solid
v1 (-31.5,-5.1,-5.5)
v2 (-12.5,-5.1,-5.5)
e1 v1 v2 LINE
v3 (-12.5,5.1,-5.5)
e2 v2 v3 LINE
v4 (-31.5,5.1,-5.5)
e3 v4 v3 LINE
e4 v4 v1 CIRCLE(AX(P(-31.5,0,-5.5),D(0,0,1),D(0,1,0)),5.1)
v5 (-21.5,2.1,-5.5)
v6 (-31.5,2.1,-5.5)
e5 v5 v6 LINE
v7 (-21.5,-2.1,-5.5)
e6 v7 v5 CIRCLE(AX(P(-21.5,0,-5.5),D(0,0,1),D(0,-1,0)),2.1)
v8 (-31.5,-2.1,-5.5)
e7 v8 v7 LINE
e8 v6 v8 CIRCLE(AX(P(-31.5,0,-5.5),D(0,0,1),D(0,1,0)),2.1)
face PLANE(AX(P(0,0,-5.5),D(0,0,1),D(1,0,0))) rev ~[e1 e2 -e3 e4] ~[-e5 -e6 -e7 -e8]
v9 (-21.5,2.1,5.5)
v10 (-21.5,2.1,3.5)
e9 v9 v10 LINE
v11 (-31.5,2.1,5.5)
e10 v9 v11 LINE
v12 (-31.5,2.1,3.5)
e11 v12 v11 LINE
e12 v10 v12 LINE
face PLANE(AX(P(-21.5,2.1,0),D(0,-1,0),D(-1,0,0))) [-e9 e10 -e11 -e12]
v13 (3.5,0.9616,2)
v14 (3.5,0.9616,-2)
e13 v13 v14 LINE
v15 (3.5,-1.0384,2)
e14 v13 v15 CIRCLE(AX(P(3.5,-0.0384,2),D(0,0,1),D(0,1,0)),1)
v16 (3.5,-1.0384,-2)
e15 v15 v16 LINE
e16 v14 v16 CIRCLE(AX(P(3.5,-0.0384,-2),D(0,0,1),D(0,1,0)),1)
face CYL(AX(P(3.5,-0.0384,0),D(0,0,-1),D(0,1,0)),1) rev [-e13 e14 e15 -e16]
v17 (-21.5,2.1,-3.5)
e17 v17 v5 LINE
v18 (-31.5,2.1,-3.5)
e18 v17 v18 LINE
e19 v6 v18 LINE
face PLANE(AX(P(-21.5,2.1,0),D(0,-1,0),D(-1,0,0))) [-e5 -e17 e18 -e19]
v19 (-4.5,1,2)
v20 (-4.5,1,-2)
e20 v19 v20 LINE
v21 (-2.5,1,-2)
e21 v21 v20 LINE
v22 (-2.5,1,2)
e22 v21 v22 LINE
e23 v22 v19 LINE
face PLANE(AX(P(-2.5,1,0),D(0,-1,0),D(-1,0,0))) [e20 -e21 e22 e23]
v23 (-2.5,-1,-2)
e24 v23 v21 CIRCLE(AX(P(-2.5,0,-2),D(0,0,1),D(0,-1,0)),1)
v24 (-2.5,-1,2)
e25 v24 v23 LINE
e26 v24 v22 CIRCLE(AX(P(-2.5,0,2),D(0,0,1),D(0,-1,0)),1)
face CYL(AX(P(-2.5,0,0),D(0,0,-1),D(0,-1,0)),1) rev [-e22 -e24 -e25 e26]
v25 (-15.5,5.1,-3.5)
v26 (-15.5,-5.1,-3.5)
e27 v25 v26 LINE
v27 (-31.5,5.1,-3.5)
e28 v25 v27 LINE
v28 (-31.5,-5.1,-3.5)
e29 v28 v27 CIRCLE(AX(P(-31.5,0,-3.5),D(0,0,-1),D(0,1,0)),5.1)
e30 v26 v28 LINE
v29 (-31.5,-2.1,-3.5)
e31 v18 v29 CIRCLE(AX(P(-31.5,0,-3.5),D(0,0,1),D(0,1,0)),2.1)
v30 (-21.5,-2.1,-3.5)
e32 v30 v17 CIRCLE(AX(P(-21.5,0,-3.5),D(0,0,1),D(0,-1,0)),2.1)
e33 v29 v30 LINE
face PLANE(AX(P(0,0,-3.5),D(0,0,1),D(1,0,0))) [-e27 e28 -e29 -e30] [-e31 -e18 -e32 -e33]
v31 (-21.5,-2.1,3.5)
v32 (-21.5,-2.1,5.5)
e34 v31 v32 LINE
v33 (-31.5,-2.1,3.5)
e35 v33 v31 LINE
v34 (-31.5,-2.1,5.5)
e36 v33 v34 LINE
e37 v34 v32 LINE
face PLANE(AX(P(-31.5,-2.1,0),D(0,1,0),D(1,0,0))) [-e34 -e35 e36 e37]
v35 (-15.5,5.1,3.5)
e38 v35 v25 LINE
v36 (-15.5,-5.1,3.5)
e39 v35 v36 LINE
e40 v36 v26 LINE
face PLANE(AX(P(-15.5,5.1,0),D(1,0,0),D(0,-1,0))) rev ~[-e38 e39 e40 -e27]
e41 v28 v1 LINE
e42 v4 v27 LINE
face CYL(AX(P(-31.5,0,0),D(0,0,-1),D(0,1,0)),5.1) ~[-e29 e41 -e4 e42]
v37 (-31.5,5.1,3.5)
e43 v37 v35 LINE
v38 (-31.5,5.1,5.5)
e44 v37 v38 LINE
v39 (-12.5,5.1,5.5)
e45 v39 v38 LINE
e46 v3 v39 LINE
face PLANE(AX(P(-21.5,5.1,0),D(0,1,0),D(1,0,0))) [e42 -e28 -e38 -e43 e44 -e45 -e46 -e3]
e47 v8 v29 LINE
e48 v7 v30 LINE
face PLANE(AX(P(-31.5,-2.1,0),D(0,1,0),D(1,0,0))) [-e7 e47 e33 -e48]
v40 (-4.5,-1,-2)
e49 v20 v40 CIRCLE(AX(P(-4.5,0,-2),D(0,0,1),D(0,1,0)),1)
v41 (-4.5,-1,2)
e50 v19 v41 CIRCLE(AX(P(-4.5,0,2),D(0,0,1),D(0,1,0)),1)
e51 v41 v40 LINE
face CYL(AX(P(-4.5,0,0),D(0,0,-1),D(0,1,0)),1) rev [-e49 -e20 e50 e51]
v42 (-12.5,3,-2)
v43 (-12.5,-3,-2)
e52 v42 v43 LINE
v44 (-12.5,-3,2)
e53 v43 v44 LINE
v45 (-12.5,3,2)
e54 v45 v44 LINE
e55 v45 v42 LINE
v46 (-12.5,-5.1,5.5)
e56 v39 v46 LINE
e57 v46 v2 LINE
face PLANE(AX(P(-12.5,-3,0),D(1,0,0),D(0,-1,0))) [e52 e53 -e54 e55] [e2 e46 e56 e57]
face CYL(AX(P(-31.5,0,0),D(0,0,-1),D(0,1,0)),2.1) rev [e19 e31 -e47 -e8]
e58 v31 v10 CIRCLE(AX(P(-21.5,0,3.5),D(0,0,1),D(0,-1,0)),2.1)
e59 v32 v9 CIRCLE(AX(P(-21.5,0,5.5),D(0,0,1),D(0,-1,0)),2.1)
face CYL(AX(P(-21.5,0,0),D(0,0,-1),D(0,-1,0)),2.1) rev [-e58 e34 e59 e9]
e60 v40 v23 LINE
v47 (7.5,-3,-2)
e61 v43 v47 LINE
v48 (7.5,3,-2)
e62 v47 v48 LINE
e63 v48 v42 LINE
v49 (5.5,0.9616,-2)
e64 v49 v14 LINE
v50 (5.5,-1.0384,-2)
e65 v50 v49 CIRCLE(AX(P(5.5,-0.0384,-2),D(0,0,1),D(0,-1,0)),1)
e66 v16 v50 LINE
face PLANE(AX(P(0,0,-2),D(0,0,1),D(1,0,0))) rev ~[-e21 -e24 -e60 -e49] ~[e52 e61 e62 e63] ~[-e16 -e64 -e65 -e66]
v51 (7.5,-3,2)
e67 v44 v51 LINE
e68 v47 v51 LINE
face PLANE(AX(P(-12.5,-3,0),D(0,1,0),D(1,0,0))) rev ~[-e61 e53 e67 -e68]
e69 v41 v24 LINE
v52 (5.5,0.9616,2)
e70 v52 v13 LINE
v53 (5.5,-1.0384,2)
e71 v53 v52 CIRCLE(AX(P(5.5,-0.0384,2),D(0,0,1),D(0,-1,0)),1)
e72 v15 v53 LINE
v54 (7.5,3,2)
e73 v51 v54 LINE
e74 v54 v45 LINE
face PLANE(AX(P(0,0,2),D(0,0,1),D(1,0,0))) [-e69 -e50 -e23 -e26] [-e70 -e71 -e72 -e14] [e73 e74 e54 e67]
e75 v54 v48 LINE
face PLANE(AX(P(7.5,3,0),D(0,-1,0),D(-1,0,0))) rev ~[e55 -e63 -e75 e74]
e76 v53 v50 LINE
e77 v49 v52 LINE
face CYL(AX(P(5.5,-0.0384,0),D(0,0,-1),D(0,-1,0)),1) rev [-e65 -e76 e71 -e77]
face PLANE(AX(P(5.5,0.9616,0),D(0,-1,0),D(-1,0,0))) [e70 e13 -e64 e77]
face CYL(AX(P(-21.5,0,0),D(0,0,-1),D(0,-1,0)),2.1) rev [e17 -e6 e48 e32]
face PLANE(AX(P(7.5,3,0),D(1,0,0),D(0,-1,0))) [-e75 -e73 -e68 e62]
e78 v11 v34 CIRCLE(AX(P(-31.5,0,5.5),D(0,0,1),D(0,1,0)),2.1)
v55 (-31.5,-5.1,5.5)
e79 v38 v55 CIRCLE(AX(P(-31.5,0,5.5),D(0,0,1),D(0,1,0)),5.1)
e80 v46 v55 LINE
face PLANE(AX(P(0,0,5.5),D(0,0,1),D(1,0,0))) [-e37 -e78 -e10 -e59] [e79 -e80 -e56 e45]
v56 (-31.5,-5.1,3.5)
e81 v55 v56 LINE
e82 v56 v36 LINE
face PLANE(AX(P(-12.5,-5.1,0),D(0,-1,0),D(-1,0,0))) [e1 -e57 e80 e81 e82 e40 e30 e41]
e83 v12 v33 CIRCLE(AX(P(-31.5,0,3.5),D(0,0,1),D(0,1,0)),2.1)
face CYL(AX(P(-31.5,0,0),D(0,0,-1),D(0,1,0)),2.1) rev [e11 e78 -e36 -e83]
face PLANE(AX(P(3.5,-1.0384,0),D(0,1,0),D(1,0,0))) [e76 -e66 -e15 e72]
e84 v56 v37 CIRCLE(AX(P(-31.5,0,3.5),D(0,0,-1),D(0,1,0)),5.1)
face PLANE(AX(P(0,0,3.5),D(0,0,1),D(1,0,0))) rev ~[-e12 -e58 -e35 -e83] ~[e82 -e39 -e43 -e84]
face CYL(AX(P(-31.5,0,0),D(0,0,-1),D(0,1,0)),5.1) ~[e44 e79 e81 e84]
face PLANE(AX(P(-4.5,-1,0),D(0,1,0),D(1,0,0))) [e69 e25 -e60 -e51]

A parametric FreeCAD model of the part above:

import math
import FreeCAD as App
import Part
import Sketcher
Q = App.Units.Quantity

doc = App.newDocument("Part")
params = doc.addObject("Spreadsheet::Sheet", "Params")
for row, (alias, value) in enumerate([
    ("sketch1_radius", "1 mm"),
    ("sketch1_width", "2 mm"),
    ("sketch1_height", "6 mm"),
    ("sketch1_width2", "20 mm"),
    ("pad1_length", "4 mm"),
    ("sketch2_radius", "2.1 mm"),
    ("sketch2_width", "10 mm"),
    ("pad2_length", "11 mm"),
    ("sketch3_radius", "2.1 mm"),
    ("sketch3_width", "10 mm"),
    ("pocket1_length", "7 mm"),
], start=1):
    params.set(f"A{row}", alias)
    params.set(f"B{row}", "=" + value)
    params.setAlias(f"B{row}", alias)

body = doc.addObject("PartDesign::Body", "Body")

sketch1 = body.newObject("Sketcher::SketchObject", "Sketch")
sketch1.AttachmentSupport = (doc.getObject("XY_Plane"), [""])
sketch1.MapMode = "FlatFace"
sketch1.addGeometry(Part.LineSegment(App.Vector(-12.5, 3, 0), App.Vector(-12.5, -3, 0)), False)
sketch1.addGeometry(Part.LineSegment(App.Vector(-12.5, -3, 0), App.Vector(7.5, -3, 0)), False)
sketch1.addGeometry(Part.LineSegment(App.Vector(7.5, -3, 0), App.Vector(7.5, 3, 0)), False)
sketch1.addGeometry(Part.LineSegment(App.Vector(7.5, 3, 0), App.Vector(-12.5, 3, 0)), False)
sketch1.addGeometry(Part.LineSegment(App.Vector(3.5, 0.9616, 0), App.Vector(5.5, 0.9616, 0)), False)
sketch1.addGeometry(Part.ArcOfCircle(Part.Circle(App.Vector(5.5, -0.0384, 0), App.Vector(0, 0, 1), 1), math.radians(-90), math.radians(90)), False)
sketch1.addGeometry(Part.LineSegment(App.Vector(5.5, -1.0384, 0), App.Vector(3.5, -1.0384, 0)), False)
sketch1.addGeometry(Part.ArcOfCircle(Part.Circle(App.Vector(3.5, -0.0384, 0), App.Vector(0, 0, 1), 1), math.radians(90), math.radians(270)), False)
sketch1.addGeometry(Part.LineSegment(App.Vector(-4.5, 1, 0), App.Vector(-2.5, 1, 0)), False)
sketch1.addGeometry(Part.ArcOfCircle(Part.Circle(App.Vector(-2.5, 0, 0), App.Vector(0, 0, 1), 1), math.radians(-90), math.radians(90)), False)
sketch1.addGeometry(Part.LineSegment(App.Vector(-2.5, -1, 0), App.Vector(-4.5, -1, 0)), False)
sketch1.addGeometry(Part.ArcOfCircle(Part.Circle(App.Vector(-4.5, 0, 0), App.Vector(0, 0, 1), 1), math.radians(90), math.radians(270)), False)
sketch1.addConstraint(Sketcher.Constraint("Coincident", 0, 2, 1, 1))
sketch1.addConstraint(Sketcher.Constraint("Coincident", 1, 2, 2, 1))
sketch1.addConstraint(Sketcher.Constraint("Coincident", 2, 2, 3, 1))
sketch1.addConstraint(Sketcher.Constraint("Coincident", 3, 2, 0, 1))
sketch1.addConstraint(Sketcher.Constraint("Tangent", 4, 2, 5, 2))
sketch1.addConstraint(Sketcher.Constraint("Tangent", 5, 1, 6, 1))
sketch1.addConstraint(Sketcher.Constraint("Tangent", 6, 2, 7, 2))
sketch1.addConstraint(Sketcher.Constraint("Tangent", 7, 1, 4, 1))
sketch1.addConstraint(Sketcher.Constraint("Tangent", 8, 2, 9, 2))
sketch1.addConstraint(Sketcher.Constraint("Tangent", 9, 1, 10, 1))
sketch1.addConstraint(Sketcher.Constraint("Tangent", 10, 2, 11, 2))
sketch1.addConstraint(Sketcher.Constraint("Tangent", 11, 1, 8, 1))
sketch1.addConstraint(Sketcher.Constraint("Vertical", 0))
sketch1.addConstraint(Sketcher.Constraint("Horizontal", 1))
sketch1.addConstraint(Sketcher.Constraint("Vertical", 2))
sketch1.addConstraint(Sketcher.Constraint("Horizontal", 3))
sketch1.addConstraint(Sketcher.Constraint("Horizontal", 4))
sketch1.addConstraint(Sketcher.Constraint("Horizontal", 6))
sketch1.addConstraint(Sketcher.Constraint("Horizontal", 8))
sketch1.addConstraint(Sketcher.Constraint("Horizontal", 10))
sketch1.addConstraint(Sketcher.Constraint("Equal", 7, 9))
sketch1.addConstraint(Sketcher.Constraint("PointOnObject", 9, 3, -1))
sketch1.addConstraint(Sketcher.Constraint("Equal", 6, 8))
sketch1.addConstraint(Sketcher.Constraint("Radius", 5, Q("1 mm")))
sketch1.addConstraint(Sketcher.Constraint("DistanceX", 4, 1, 4, 2, Q("2 mm")))
sketch1.addConstraint(Sketcher.Constraint("DistanceY", 0, 2, 0, 1, Q("6 mm")))
sketch1.addConstraint(Sketcher.Constraint("DistanceY", 0, 2, -1, 1, Q("3 mm")))
sketch1.addConstraint(Sketcher.Constraint("DistanceX", 9, 3, 7, 3, Q("6 mm")))
sketch1.addConstraint(Sketcher.Constraint("DistanceX", 5, 3, 1, 2, Q("2 mm")))
sketch1.addConstraint(Sketcher.Constraint("DistanceX", 1, 1, 1, 2, Q("20 mm")))
sketch1.addConstraint(Sketcher.Constraint("DistanceX", -1, 1, 5, 3, Q("5.5 mm")))
sketch1.addConstraint(Sketcher.Constraint("DistanceY", 5, 3, -1, 1, Q("0.0384 mm")))
sketch1.setExpression("Constraints[23]", "Params.sketch1_radius")
sketch1.setExpression("Constraints[24]", "Params.sketch1_width")
sketch1.setExpression("Constraints[25]", "Params.sketch1_height")
sketch1.setExpression("Constraints[29]", "Params.sketch1_width2")
pad1 = body.newObject("PartDesign::Pad", "Pad")
pad1.Profile = sketch1
pad1.setExpression("Length", "Params.pad1_length")
pad1.Midplane = True

sketch2 = body.newObject("Sketcher::SketchObject", "Sketch001")
sketch2.AttachmentSupport = (doc.getObject("XY_Plane"), [""])
sketch2.MapMode = "FlatFace"
sketch2.addGeometry(Part.LineSegment(App.Vector(-12.5, -5.1, 0), App.Vector(-12.5, 5.1, 0)), False)
sketch2.addGeometry(Part.LineSegment(App.Vector(-12.5, 5.1, 0), App.Vector(-31.5, 5.1, 0)), False)
sketch2.addGeometry(Part.ArcOfCircle(Part.Circle(App.Vector(-31.5, 0, 0), App.Vector(0, 0, 1), 5.1), math.radians(90), math.radians(270)), False)
sketch2.addGeometry(Part.LineSegment(App.Vector(-31.5, -5.1, 0), App.Vector(-12.5, -5.1, 0)), False)
sketch2.addGeometry(Part.ArcOfCircle(Part.Circle(App.Vector(-21.5, 0, 0), App.Vector(0, 0, 1), 2.1), math.radians(-90), math.radians(90)), False)
sketch2.addGeometry(Part.LineSegment(App.Vector(-21.5, -2.1, 0), App.Vector(-31.5, -2.1, 0)), False)
sketch2.addGeometry(Part.ArcOfCircle(Part.Circle(App.Vector(-31.5, 0, 0), App.Vector(0, 0, 1), 2.1), math.radians(90), math.radians(270)), False)
sketch2.addGeometry(Part.LineSegment(App.Vector(-31.5, 2.1, 0), App.Vector(-21.5, 2.1, 0)), False)
sketch2.addConstraint(Sketcher.Constraint("Coincident", 0, 2, 1, 1))
sketch2.addConstraint(Sketcher.Constraint("Tangent", 1, 2, 2, 1))
sketch2.addConstraint(Sketcher.Constraint("Tangent", 2, 2, 3, 1))
sketch2.addConstraint(Sketcher.Constraint("Coincident", 3, 2, 0, 1))
sketch2.addConstraint(Sketcher.Constraint("Tangent", 4, 1, 5, 1))
sketch2.addConstraint(Sketcher.Constraint("Tangent", 5, 2, 6, 2))
sketch2.addConstraint(Sketcher.Constraint("Tangent", 6, 1, 7, 1))
sketch2.addConstraint(Sketcher.Constraint("Tangent", 7, 2, 4, 2))
sketch2.addConstraint(Sketcher.Constraint("Vertical", 0))
sketch2.addConstraint(Sketcher.Constraint("Horizontal", 1))
sketch2.addConstraint(Sketcher.Constraint("Horizontal", 3))
sketch2.addConstraint(Sketcher.Constraint("Horizontal", 5))
sketch2.addConstraint(Sketcher.Constraint("Horizontal", 7))
sketch2.addConstraint(Sketcher.Constraint("Coincident", 6, 3, 2, 3))
sketch2.addConstraint(Sketcher.Constraint("PointOnObject", 2, 3, -1))
sketch2.addConstraint(Sketcher.Constraint("Radius", 4, Q("2.1 mm")))
sketch2.addConstraint(Sketcher.Constraint("DistanceX", 5, 2, 5, 1, Q("10 mm")))
sketch2.addConstraint(Sketcher.Constraint("DistanceX", 4, 3, 0, 2, Q("9 mm")))
sketch2.addConstraint(Sketcher.Constraint("DistanceY", 3, 2, 4, 1, Q("3 mm")))
sketch2.addConstraint(Sketcher.Constraint("DistanceX", 2, 3, -1, 1, Q("31.5 mm")))
sketch2.setExpression("Constraints[15]", "Params.sketch2_radius")
sketch2.setExpression("Constraints[16]", "Params.sketch2_width")
pad2 = body.newObject("PartDesign::Pad", "Pad001")
pad2.Profile = sketch2
pad2.setExpression("Length", "Params.pad2_length")
pad2.Midplane = True

sketch3 = body.newObject("Sketcher::SketchObject", "Sketch002")
sketch3.AttachmentSupport = (doc.getObject("XY_Plane"), [""])
sketch3.MapMode = "FlatFace"
sketch3.addGeometry(Part.LineSegment(App.Vector(-15.5, 5.1, 0), App.Vector(-45.605, 5.1, 0)), False)
sketch3.addGeometry(Part.LineSegment(App.Vector(-45.605, 5.1, 0), App.Vector(-45.605, -5.1, 0)), False)
sketch3.addGeometry(Part.LineSegment(App.Vector(-45.605, -5.1, 0), App.Vector(-15.5, -5.1, 0)), False)
sketch3.addGeometry(Part.LineSegment(App.Vector(-15.5, -5.1, 0), App.Vector(-15.5, 5.1, 0)), False)
sketch3.addGeometry(Part.ArcOfCircle(Part.Circle(App.Vector(-21.5, 0, 0), App.Vector(0, 0, 1), 2.1), math.radians(-90), math.radians(90)), False)
sketch3.addGeometry(Part.LineSegment(App.Vector(-21.5, -2.1, 0), App.Vector(-31.5, -2.1, 0)), False)
sketch3.addGeometry(Part.ArcOfCircle(Part.Circle(App.Vector(-31.5, 0, 0), App.Vector(0, 0, 1), 2.1), math.radians(90), math.radians(270)), False)
sketch3.addGeometry(Part.LineSegment(App.Vector(-31.5, 2.1, 0), App.Vector(-21.5, 2.1, 0)), False)
sketch3.addConstraint(Sketcher.Constraint("Coincident", 0, 2, 1, 1))
sketch3.addConstraint(Sketcher.Constraint("Coincident", 1, 2, 2, 1))
sketch3.addConstraint(Sketcher.Constraint("Coincident", 2, 2, 3, 1))
sketch3.addConstraint(Sketcher.Constraint("Coincident", 3, 2, 0, 1))
sketch3.addConstraint(Sketcher.Constraint("Tangent", 4, 1, 5, 1))
sketch3.addConstraint(Sketcher.Constraint("Tangent", 5, 2, 6, 2))
sketch3.addConstraint(Sketcher.Constraint("Tangent", 6, 1, 7, 1))
sketch3.addConstraint(Sketcher.Constraint("Tangent", 7, 2, 4, 2))
sketch3.addConstraint(Sketcher.Constraint("Horizontal", 0))
sketch3.addConstraint(Sketcher.Constraint("Vertical", 1))
sketch3.addConstraint(Sketcher.Constraint("Horizontal", 2))
sketch3.addConstraint(Sketcher.Constraint("Vertical", 3))
sketch3.addConstraint(Sketcher.Constraint("Horizontal", 5))
sketch3.addConstraint(Sketcher.Constraint("Horizontal", 7))
sketch3.addConstraint(Sketcher.Constraint("PointOnObject", 4, 3, -1))
sketch3.addConstraint(Sketcher.Constraint("DistanceY", 2, 2, 4, 1, Q("3 mm")))
sketch3.addConstraint(Sketcher.Constraint("DistanceY", 6, 1, 0, 2, Q("3 mm")))
sketch3.addConstraint(Sketcher.Constraint("Radius", 4, Q("2.1 mm")))
sketch3.addConstraint(Sketcher.Constraint("DistanceX", 5, 2, 5, 1, Q("10 mm")))
sketch3.addConstraint(Sketcher.Constraint("DistanceX", 4, 3, 2, 2, Q("6 mm")))
sketch3.addConstraint(Sketcher.Constraint("DistanceX", 4, 3, -1, 1, Q("21.5 mm")))
sketch3.addConstraint(Sketcher.Constraint("DistanceX", 0, 2, 0, 1, Q("30.105 mm")))
sketch3.setExpression("Constraints[17]", "Params.sketch3_radius")
sketch3.setExpression("Constraints[18]", "Params.sketch3_width")
pocket1 = body.newObject("PartDesign::Pocket", "Pocket")
pocket1.Profile = sketch3
pocket1.setExpression("Length", "Params.pocket1_length")
pocket1.Midplane = True

doc.recompute()
